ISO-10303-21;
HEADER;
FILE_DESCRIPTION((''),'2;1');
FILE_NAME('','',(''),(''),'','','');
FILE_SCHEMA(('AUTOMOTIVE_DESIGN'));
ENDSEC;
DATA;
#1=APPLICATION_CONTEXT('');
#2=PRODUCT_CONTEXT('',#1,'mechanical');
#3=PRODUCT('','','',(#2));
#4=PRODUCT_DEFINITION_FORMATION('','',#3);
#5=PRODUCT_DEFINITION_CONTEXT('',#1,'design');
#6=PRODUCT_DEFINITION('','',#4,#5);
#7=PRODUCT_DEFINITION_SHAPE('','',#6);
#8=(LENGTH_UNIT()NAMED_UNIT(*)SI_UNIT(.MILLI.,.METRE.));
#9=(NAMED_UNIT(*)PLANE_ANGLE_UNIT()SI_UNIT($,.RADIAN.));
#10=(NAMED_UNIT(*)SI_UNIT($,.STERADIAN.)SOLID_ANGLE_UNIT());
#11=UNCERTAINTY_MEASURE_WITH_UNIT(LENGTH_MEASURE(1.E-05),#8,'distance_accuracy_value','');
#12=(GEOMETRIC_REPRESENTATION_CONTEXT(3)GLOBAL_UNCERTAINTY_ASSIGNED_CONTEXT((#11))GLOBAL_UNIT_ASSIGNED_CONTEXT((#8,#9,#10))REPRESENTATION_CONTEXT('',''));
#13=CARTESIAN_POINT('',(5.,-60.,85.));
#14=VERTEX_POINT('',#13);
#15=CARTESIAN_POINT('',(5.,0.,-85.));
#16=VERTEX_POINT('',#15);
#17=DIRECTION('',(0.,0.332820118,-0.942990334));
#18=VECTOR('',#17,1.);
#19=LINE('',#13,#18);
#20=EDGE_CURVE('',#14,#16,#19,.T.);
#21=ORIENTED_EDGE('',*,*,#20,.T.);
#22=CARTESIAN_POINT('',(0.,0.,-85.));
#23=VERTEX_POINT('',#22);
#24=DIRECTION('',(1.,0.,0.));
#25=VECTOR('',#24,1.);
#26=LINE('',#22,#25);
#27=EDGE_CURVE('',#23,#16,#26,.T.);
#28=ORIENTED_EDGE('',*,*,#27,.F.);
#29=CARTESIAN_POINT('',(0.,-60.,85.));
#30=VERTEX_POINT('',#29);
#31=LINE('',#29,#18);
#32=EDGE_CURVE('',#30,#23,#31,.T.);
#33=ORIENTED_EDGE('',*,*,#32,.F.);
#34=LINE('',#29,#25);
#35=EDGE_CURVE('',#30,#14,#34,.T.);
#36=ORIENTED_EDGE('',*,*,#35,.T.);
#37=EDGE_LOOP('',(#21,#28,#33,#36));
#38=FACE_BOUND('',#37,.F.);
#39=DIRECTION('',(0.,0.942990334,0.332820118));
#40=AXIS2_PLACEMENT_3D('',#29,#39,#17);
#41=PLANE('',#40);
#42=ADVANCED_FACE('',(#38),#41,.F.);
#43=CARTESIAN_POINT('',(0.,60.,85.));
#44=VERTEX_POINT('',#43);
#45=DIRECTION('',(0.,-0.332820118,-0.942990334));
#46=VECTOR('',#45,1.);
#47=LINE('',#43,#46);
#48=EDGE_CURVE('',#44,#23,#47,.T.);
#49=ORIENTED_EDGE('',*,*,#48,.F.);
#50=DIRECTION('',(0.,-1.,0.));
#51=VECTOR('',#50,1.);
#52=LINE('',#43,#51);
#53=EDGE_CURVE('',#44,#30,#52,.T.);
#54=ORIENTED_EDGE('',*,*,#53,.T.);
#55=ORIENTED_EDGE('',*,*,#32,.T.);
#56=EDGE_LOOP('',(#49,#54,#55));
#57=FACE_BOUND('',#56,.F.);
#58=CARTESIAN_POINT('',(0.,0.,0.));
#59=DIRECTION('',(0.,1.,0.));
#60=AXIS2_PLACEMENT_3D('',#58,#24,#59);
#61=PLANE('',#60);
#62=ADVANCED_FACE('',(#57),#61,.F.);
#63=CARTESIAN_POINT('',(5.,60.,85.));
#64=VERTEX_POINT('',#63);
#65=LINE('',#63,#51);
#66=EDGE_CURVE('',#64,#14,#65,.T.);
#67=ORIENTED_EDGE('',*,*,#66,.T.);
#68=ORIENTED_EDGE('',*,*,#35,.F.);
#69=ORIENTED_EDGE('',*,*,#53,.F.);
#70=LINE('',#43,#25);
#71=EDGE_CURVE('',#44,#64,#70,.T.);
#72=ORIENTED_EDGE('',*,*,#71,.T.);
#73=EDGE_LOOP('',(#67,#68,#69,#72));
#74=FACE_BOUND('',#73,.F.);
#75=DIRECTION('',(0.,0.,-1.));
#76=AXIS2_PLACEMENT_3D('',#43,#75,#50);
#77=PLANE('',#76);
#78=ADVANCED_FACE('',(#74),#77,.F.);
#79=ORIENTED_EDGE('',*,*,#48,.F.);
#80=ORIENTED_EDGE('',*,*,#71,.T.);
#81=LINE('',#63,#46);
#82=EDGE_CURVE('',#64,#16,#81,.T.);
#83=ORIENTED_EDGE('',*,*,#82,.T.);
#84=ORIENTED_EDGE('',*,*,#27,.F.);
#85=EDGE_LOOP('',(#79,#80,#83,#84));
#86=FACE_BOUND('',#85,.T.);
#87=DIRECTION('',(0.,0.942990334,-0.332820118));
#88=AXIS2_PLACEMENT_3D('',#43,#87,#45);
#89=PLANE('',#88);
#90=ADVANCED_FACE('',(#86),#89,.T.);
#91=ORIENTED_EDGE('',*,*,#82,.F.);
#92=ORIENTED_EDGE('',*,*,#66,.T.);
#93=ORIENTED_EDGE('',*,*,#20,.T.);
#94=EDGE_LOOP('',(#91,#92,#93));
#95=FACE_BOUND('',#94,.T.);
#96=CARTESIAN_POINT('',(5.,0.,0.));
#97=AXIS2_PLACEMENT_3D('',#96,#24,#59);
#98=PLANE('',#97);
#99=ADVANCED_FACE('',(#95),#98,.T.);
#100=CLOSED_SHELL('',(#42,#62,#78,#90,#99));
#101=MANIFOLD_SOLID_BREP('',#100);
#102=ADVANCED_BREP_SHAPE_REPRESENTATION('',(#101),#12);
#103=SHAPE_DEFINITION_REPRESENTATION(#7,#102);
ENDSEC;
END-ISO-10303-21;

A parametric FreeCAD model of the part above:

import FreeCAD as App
import Part
import Sketcher
from FreeCAD import Vector

doc = App.newDocument("Part")
body = doc.addObject("PartDesign::Body", "Body")

# Sketch on YZ plane
sketch1 = doc.addObject("Sketcher::SketchObject", "Sketch")
body.addObject(sketch1)
sketch1.AttachmentSupport = (doc.YZ_Plane, [""])
sketch1.MapMode = "FlatFace"
sketch1.addGeometry(Part.LineSegment(Vector(0, -85, 0), Vector(60, 85, 0)), False)
sketch1.addGeometry(Part.LineSegment(Vector(60, 85, 0), Vector(-60, 85, 0)), False)
sketch1.addGeometry(Part.LineSegment(Vector(-60, 85, 0), Vector(0, -85, 0)), False)
sketch1.addConstraint(Sketcher.Constraint("Coincident", 0, 2, 1, 1))
sketch1.addConstraint(Sketcher.Constraint("Coincident", 1, 2, 2, 1))
sketch1.addConstraint(Sketcher.Constraint("Coincident", 2, 2, 0, 1))
sketch1.addConstraint(Sketcher.Constraint("Horizontal", 1))
sketch1.addConstraint(Sketcher.Constraint("PointOnObject", 2, 2, -2))
sketch1.addConstraint(Sketcher.Constraint("Equal", 0, 2))
sketch1.addConstraint(Sketcher.Constraint("DistanceX", 1, 2, 1, 1, 120.0))
sketch1.addConstraint(Sketcher.Constraint("DistanceY", -1, 1, 0, 2, 85.0))
sketch1.addConstraint(Sketcher.Constraint("DistanceY", 2, 2, -1, 1, 85.0))
pad1 = doc.addObject("PartDesign::Pad", "Pad")
body.addObject(pad1)
pad1.Profile = sketch1
pad1.Length = 5

doc.recompute()
